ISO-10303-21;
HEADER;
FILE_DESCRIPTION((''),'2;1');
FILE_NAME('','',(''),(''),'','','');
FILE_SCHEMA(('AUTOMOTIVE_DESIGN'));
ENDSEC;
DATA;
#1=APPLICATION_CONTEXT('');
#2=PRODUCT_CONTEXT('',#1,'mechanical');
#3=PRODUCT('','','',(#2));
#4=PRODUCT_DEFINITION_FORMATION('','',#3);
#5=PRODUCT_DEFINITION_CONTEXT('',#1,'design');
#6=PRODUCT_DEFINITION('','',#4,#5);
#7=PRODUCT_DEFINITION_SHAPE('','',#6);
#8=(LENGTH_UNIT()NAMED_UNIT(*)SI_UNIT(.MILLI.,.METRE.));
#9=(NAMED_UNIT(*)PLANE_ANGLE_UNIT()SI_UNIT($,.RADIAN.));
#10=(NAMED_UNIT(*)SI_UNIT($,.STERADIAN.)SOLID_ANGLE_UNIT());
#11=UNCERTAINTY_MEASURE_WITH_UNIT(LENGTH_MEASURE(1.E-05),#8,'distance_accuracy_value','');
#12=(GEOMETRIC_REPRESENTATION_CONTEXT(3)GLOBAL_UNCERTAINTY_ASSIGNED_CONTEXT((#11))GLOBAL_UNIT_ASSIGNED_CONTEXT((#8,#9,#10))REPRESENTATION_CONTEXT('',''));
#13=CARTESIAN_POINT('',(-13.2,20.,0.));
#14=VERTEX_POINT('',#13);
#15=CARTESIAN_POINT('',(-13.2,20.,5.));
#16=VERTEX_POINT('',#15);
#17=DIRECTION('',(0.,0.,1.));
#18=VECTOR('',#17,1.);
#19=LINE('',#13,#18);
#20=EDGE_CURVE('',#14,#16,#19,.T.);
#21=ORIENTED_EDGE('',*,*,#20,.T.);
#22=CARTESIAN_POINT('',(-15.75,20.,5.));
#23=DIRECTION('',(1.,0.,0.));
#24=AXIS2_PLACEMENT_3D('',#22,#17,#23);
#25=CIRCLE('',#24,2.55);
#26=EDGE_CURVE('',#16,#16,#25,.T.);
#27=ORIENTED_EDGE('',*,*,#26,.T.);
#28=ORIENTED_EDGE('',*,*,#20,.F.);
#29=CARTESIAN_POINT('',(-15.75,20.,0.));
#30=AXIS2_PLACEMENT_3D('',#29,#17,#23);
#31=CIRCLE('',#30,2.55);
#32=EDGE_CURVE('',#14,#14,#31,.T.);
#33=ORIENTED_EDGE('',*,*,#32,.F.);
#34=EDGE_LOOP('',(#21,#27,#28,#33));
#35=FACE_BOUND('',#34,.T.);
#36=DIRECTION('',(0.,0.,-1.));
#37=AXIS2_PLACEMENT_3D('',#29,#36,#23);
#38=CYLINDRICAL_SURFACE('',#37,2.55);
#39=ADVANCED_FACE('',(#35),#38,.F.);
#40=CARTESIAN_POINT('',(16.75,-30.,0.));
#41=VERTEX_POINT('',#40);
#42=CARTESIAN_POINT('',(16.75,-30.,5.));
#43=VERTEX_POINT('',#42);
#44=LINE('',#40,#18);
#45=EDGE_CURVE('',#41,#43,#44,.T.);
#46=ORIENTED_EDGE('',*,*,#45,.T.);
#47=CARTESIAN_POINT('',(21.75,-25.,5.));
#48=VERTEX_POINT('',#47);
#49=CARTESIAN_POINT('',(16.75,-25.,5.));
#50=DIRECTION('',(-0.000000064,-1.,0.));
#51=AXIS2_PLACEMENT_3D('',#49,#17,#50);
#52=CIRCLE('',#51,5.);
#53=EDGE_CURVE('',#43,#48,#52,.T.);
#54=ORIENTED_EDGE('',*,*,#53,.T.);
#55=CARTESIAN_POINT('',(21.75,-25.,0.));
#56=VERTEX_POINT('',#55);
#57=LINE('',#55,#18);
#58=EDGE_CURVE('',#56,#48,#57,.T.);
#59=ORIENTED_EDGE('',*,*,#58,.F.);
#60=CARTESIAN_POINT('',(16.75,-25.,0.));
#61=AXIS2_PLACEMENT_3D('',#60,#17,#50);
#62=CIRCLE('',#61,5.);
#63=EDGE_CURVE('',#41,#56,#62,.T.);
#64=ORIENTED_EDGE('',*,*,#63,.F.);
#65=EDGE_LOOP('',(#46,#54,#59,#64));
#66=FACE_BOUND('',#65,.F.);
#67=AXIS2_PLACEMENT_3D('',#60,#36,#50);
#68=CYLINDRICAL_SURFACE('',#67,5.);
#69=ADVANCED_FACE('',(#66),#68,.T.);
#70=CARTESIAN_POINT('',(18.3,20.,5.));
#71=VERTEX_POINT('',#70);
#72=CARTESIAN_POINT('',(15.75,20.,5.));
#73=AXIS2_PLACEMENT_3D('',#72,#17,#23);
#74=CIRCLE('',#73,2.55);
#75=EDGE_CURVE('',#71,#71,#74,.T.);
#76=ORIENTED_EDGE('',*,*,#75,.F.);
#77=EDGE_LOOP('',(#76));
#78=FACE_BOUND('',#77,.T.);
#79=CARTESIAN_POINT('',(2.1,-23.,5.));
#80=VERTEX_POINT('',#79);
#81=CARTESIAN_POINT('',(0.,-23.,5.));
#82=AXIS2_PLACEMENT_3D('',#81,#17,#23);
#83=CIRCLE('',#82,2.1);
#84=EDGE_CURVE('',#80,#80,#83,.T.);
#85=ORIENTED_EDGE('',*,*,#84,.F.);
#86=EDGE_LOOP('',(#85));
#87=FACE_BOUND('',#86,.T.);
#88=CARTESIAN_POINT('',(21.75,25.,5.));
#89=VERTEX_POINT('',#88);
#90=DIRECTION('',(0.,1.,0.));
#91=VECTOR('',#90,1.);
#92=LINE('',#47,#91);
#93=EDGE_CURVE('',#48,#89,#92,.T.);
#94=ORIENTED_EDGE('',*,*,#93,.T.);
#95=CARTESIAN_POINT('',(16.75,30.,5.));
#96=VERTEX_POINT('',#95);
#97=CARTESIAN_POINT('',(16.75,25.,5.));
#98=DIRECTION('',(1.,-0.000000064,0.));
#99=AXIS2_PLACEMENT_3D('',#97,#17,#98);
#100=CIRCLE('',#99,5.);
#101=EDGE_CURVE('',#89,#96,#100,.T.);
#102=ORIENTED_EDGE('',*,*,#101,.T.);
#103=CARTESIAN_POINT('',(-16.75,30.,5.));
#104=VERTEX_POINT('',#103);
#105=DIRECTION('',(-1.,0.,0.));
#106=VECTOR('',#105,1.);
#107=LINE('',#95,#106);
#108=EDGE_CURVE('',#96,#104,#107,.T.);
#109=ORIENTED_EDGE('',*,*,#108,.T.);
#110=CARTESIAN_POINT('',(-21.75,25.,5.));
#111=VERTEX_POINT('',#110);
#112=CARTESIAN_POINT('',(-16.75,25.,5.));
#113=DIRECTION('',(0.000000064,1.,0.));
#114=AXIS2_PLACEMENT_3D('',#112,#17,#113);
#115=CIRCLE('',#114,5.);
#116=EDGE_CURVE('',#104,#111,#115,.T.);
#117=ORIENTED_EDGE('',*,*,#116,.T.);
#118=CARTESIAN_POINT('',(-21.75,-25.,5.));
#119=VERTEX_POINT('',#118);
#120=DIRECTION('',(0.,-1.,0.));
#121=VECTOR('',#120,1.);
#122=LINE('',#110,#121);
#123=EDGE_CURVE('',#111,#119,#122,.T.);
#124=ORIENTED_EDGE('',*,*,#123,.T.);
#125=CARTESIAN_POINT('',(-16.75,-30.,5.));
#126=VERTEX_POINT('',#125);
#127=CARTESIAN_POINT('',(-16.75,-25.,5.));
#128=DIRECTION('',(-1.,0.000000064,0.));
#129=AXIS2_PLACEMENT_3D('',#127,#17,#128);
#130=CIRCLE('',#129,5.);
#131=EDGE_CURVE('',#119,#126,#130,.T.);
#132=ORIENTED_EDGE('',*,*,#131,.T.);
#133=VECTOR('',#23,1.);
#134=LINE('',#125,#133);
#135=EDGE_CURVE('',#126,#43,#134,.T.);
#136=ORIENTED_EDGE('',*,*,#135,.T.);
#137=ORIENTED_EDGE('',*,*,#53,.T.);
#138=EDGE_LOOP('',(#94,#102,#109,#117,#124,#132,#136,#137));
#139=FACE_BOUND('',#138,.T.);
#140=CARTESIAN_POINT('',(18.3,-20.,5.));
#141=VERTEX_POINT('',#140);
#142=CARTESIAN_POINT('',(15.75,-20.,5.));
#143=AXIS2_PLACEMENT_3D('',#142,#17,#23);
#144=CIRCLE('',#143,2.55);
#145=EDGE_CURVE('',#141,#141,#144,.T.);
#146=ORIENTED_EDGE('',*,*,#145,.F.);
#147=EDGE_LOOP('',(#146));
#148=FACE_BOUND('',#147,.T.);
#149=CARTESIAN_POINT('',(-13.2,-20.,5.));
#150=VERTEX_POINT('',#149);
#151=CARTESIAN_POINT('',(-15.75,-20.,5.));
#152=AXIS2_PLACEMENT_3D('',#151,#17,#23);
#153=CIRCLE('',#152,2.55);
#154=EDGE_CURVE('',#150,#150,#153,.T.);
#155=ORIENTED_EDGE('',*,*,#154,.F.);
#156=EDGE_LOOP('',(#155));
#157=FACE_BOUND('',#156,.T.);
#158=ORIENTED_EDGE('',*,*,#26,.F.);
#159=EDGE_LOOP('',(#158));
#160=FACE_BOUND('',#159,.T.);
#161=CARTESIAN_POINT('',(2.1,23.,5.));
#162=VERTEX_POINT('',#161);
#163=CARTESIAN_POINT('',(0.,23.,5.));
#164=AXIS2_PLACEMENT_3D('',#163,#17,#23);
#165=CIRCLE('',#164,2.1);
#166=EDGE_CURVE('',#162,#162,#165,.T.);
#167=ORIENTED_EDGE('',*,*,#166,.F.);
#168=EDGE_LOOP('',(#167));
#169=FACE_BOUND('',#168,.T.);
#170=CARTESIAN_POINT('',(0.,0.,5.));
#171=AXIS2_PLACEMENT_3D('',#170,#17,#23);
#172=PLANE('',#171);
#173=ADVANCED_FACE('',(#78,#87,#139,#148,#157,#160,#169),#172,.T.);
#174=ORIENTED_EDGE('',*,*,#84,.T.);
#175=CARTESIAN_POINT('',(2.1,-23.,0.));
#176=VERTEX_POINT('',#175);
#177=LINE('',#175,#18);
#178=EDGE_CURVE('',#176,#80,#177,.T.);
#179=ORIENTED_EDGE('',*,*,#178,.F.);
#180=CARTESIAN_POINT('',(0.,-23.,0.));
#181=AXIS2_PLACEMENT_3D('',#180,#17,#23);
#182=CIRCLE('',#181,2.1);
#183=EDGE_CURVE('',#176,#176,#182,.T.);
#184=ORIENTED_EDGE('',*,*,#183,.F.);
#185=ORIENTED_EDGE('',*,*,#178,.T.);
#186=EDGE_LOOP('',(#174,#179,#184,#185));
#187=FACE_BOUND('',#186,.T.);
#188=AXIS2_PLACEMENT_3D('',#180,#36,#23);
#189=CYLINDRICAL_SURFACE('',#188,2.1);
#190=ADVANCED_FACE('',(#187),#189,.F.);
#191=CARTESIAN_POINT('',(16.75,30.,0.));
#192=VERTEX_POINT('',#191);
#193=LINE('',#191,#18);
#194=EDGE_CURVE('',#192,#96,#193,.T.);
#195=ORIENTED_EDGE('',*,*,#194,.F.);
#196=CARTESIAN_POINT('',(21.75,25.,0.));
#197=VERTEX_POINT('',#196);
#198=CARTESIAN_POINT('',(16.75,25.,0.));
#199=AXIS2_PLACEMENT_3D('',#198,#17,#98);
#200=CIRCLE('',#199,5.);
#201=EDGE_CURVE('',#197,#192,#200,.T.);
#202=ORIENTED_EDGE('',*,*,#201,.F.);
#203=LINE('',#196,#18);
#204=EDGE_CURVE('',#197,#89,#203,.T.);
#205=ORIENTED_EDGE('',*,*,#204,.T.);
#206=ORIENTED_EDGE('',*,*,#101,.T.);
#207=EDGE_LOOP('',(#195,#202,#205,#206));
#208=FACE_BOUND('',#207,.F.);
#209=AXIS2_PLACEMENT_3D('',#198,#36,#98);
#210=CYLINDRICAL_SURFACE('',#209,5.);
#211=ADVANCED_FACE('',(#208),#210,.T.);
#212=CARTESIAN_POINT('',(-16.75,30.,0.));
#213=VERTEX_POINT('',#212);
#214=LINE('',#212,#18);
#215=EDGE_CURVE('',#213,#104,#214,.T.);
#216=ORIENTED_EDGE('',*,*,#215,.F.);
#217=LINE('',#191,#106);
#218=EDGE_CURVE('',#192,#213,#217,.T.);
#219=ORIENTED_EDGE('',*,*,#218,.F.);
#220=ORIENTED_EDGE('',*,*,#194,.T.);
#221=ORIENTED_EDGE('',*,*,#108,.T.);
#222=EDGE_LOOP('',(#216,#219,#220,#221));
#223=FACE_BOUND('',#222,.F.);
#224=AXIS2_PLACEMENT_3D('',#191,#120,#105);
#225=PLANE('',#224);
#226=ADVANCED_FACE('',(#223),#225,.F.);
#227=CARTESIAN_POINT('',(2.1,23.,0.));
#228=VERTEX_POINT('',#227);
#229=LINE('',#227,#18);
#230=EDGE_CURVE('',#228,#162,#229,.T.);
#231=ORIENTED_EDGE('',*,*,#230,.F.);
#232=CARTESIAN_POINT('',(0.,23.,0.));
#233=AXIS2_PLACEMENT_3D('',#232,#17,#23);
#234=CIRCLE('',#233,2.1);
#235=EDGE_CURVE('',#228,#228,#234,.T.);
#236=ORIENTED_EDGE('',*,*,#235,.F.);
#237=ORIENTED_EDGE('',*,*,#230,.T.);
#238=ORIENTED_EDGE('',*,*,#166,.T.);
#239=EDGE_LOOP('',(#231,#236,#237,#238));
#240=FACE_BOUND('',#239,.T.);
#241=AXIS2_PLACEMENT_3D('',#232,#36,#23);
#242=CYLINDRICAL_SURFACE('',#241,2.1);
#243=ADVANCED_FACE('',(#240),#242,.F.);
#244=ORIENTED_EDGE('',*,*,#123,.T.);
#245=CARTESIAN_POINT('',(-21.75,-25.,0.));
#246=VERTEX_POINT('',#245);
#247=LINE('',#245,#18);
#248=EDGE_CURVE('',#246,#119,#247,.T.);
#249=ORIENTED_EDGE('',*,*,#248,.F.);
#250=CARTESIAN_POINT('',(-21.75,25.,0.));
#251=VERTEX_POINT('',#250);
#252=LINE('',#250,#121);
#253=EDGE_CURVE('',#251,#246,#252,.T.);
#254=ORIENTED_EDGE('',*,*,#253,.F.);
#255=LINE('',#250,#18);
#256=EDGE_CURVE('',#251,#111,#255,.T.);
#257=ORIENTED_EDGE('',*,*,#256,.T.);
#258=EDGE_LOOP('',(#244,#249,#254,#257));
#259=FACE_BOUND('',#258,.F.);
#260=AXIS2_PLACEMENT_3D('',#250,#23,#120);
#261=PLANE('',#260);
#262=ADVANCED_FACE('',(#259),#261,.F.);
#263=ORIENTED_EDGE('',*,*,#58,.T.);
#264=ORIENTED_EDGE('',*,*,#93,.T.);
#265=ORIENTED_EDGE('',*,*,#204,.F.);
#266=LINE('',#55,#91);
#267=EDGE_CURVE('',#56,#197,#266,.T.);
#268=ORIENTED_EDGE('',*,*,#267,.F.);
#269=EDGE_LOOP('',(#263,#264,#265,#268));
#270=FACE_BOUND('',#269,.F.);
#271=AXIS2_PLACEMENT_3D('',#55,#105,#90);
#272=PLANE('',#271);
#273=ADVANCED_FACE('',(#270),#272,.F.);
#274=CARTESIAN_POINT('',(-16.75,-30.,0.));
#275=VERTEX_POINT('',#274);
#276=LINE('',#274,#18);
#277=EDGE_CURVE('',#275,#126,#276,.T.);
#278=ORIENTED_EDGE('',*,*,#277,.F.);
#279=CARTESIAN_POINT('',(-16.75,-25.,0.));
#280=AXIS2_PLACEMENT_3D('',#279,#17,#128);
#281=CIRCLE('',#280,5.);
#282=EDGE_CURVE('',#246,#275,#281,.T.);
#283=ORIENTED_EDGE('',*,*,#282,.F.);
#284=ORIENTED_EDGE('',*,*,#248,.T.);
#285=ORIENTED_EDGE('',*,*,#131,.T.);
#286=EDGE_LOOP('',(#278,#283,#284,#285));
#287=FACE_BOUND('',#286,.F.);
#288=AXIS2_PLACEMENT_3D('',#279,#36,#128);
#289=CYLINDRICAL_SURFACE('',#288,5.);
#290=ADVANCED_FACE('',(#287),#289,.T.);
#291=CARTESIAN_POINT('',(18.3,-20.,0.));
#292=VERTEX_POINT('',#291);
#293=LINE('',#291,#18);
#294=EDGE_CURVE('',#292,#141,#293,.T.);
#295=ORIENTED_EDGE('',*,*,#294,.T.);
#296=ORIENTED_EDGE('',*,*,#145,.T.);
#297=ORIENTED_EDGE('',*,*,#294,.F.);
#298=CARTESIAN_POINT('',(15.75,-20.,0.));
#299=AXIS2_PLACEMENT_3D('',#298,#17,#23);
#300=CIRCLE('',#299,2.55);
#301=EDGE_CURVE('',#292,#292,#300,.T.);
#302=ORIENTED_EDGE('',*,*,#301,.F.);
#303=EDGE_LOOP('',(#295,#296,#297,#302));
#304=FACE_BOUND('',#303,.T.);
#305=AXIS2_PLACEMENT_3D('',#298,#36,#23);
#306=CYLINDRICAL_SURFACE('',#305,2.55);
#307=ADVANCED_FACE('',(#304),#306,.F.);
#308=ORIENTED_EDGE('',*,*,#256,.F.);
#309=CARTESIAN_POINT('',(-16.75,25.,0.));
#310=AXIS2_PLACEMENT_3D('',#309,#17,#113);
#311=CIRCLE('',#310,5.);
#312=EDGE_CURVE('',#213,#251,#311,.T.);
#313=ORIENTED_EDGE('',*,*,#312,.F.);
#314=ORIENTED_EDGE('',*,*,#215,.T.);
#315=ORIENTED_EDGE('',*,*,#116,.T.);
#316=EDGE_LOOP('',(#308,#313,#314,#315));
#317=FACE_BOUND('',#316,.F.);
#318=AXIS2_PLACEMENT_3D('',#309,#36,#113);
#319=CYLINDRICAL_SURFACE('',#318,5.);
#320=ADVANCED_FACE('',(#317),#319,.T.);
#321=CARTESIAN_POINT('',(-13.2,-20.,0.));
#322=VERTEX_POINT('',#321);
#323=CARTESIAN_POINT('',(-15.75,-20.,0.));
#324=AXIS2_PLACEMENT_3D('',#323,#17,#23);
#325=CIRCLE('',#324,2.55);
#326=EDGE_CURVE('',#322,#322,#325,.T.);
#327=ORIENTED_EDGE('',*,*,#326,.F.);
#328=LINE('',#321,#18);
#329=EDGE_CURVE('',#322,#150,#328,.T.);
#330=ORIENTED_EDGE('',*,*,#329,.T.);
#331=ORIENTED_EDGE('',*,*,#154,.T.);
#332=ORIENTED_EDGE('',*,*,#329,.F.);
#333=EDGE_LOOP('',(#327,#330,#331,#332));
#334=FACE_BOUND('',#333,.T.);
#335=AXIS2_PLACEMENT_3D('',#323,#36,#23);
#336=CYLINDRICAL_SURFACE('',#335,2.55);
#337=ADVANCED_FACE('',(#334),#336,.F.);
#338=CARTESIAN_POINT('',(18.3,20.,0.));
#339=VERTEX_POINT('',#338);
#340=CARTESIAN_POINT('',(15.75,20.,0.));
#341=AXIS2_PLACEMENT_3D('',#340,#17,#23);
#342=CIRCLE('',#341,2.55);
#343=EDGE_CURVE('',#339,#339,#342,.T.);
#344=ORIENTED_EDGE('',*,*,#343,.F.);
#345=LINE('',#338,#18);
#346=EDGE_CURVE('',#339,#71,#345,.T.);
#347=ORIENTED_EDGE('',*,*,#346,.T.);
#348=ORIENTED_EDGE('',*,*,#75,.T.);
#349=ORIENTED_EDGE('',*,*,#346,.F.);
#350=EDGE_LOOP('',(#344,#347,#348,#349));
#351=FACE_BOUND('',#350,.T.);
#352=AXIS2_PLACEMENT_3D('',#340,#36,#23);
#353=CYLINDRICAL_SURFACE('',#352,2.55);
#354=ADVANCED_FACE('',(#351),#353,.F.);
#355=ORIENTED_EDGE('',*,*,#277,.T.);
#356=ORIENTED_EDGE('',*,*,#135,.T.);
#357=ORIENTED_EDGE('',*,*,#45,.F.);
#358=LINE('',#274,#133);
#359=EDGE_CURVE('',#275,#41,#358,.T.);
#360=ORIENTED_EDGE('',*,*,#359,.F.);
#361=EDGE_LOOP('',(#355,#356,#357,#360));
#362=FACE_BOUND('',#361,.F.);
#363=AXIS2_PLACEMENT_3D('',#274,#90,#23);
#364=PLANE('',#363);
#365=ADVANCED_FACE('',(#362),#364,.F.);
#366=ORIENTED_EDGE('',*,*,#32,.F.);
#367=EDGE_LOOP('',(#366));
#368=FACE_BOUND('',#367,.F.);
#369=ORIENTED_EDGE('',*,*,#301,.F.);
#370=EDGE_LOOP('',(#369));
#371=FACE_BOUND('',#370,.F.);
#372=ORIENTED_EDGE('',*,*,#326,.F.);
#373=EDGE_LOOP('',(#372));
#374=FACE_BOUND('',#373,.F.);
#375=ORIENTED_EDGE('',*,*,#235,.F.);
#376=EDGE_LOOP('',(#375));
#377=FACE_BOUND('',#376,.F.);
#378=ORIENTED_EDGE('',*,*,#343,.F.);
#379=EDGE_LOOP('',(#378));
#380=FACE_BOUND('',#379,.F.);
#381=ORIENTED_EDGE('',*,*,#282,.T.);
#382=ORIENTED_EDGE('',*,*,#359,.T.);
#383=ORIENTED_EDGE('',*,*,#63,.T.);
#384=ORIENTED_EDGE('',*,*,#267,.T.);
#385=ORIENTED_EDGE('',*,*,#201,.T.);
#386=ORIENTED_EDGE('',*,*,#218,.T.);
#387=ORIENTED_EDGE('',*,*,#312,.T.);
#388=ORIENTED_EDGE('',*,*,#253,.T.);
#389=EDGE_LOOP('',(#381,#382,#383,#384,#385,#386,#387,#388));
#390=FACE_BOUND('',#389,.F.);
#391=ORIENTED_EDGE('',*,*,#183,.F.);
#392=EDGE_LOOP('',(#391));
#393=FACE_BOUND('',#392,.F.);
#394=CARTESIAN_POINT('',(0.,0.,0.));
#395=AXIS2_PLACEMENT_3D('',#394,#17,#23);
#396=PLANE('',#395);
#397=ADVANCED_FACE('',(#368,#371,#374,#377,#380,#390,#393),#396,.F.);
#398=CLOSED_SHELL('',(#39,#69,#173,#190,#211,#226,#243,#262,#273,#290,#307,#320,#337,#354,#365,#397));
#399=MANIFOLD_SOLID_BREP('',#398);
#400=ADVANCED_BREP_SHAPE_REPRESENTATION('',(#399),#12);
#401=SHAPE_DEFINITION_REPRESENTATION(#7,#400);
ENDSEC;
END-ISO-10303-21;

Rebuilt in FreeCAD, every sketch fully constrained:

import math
import FreeCAD as App
import Part
import Sketcher
Q = App.Units.Quantity

doc = App.newDocument("Part")
body = doc.addObject("PartDesign::Body", "Body")

# Sketch on XY plane
sketch1 = doc.addObject("Sketcher::SketchObject", "Sketch")
body.addObject(sketch1)
sketch1.AttachmentSupport = (doc.XY_Plane, [""])
sketch1.MapMode = "FlatFace"
sketch1.addGeometry([
    Part.LineSegment(App.Vector(-16.8, -30, 0), App.Vector(16.8, -30, 0)),  # 0
    Part.ArcOfCircle(Part.Circle(App.Vector(16.8, -25, 0), App.Vector(0, 0, 1), 5), math.radians(-90), math.radians(0)),  # 1
    Part.LineSegment(App.Vector(21.8, -25, 0), App.Vector(21.8, 25, 0)),  # 2
    Part.ArcOfCircle(Part.Circle(App.Vector(16.8, 25, 0), App.Vector(0, 0, 1), 5), math.radians(0), math.radians(90)),  # 3
    Part.LineSegment(App.Vector(16.8, 30, 0), App.Vector(-16.8, 30, 0)),  # 4
    Part.ArcOfCircle(Part.Circle(App.Vector(-16.8, 25, 0), App.Vector(0, 0, 1), 5), math.radians(90), math.radians(180)),  # 5
    Part.LineSegment(App.Vector(-21.8, 25, 0), App.Vector(-21.8, -25, 0)),  # 6
    Part.ArcOfCircle(Part.Circle(App.Vector(-16.8, -25, 0), App.Vector(0, 0, 1), 5), math.radians(180), math.radians(270)),  # 7
    Part.Circle(App.Vector(-15.8, -20, 0), App.Vector(0, 0, 1), 2.5),  # 8
    Part.Circle(App.Vector(0, -23, 0), App.Vector(0, 0, 1), 2.1),  # 9
    Part.Circle(App.Vector(15.8, -20, 0), App.Vector(0, 0, 1), 2.5),  # 10
    Part.Circle(App.Vector(-15.8, 20, 0), App.Vector(0, 0, 1), 2.5),  # 11
    Part.Circle(App.Vector(0, 23, 0), App.Vector(0, 0, 1), 2.1),  # 12
    Part.Circle(App.Vector(15.8, 20, 0), App.Vector(0, 0, 1), 2.5),  # 13
], False)
sketch1.addConstraint([
    Sketcher.Constraint("Tangent", 0, 2, 1, 1),
    Sketcher.Constraint("Tangent", 1, 2, 2, 1),
    Sketcher.Constraint("Tangent", 2, 2, 3, 1),
    Sketcher.Constraint("Tangent", 3, 2, 4, 1),
    Sketcher.Constraint("Tangent", 4, 2, 5, 1),
    Sketcher.Constraint("Tangent", 5, 2, 6, 1),
    Sketcher.Constraint("Tangent", 6, 2, 7, 1),
    Sketcher.Constraint("Tangent", 7, 2, 0, 1),
    Sketcher.Constraint("Horizontal", 0),
    Sketcher.Constraint("Vertical", 2),
    Sketcher.Constraint("Horizontal", 4),
    Sketcher.Constraint("Vertical", 6),
    Sketcher.Constraint("Equal", 1, 3),
    Sketcher.Constraint("Equal", 3, 5),
    Sketcher.Constraint("Equal", 5, 7),
    Sketcher.Constraint("Equal", 8, 10),
    Sketcher.Constraint("Equal", 10, 11),
    Sketcher.Constraint("Equal", 9, 12),
    Sketcher.Constraint("Equal", 11, 13),
    Sketcher.Constraint("Symmetric", 1, 3, 5, 3, -1, 1),
    Sketcher.Constraint("Symmetric", 10, 3, 11, 3, -1, 1),
    Sketcher.Constraint("Symmetric", 9, 3, 12, 3, -1, 1),
    Sketcher.Constraint("Symmetric", 8, 3, 13, 3, -1, 1),
    Sketcher.Constraint("Symmetric", 8, 3, 10, 3, -2),
    Sketcher.Constraint("PointOnObject", 9, 3, -2),
    Sketcher.Constraint("Radius", 1, Q("5 mm")),
    Sketcher.Constraint("Diameter", 8, Q("5.1 mm")),
    Sketcher.Constraint("Diameter", 9, Q("4.2 mm")),
    Sketcher.Constraint("DistanceY", 2, 1, 2, 2, Q("50 mm")),
    Sketcher.Constraint("DistanceX", 0, 1, 0, 2, Q("33.5 mm")),
    Sketcher.Constraint("DistanceY", 8, 3, -1, 1, Q("20 mm")),
    Sketcher.Constraint("DistanceY", 9, 3, -1, 1, Q("23 mm")),
    Sketcher.Constraint("DistanceX", 7, 3, 8, 3, Q("1 mm")),
])
pad1 = doc.addObject("PartDesign::Pad", "Pad")
body.addObject(pad1)
pad1.Profile = sketch1
pad1.Length = 5

doc.recompute()
